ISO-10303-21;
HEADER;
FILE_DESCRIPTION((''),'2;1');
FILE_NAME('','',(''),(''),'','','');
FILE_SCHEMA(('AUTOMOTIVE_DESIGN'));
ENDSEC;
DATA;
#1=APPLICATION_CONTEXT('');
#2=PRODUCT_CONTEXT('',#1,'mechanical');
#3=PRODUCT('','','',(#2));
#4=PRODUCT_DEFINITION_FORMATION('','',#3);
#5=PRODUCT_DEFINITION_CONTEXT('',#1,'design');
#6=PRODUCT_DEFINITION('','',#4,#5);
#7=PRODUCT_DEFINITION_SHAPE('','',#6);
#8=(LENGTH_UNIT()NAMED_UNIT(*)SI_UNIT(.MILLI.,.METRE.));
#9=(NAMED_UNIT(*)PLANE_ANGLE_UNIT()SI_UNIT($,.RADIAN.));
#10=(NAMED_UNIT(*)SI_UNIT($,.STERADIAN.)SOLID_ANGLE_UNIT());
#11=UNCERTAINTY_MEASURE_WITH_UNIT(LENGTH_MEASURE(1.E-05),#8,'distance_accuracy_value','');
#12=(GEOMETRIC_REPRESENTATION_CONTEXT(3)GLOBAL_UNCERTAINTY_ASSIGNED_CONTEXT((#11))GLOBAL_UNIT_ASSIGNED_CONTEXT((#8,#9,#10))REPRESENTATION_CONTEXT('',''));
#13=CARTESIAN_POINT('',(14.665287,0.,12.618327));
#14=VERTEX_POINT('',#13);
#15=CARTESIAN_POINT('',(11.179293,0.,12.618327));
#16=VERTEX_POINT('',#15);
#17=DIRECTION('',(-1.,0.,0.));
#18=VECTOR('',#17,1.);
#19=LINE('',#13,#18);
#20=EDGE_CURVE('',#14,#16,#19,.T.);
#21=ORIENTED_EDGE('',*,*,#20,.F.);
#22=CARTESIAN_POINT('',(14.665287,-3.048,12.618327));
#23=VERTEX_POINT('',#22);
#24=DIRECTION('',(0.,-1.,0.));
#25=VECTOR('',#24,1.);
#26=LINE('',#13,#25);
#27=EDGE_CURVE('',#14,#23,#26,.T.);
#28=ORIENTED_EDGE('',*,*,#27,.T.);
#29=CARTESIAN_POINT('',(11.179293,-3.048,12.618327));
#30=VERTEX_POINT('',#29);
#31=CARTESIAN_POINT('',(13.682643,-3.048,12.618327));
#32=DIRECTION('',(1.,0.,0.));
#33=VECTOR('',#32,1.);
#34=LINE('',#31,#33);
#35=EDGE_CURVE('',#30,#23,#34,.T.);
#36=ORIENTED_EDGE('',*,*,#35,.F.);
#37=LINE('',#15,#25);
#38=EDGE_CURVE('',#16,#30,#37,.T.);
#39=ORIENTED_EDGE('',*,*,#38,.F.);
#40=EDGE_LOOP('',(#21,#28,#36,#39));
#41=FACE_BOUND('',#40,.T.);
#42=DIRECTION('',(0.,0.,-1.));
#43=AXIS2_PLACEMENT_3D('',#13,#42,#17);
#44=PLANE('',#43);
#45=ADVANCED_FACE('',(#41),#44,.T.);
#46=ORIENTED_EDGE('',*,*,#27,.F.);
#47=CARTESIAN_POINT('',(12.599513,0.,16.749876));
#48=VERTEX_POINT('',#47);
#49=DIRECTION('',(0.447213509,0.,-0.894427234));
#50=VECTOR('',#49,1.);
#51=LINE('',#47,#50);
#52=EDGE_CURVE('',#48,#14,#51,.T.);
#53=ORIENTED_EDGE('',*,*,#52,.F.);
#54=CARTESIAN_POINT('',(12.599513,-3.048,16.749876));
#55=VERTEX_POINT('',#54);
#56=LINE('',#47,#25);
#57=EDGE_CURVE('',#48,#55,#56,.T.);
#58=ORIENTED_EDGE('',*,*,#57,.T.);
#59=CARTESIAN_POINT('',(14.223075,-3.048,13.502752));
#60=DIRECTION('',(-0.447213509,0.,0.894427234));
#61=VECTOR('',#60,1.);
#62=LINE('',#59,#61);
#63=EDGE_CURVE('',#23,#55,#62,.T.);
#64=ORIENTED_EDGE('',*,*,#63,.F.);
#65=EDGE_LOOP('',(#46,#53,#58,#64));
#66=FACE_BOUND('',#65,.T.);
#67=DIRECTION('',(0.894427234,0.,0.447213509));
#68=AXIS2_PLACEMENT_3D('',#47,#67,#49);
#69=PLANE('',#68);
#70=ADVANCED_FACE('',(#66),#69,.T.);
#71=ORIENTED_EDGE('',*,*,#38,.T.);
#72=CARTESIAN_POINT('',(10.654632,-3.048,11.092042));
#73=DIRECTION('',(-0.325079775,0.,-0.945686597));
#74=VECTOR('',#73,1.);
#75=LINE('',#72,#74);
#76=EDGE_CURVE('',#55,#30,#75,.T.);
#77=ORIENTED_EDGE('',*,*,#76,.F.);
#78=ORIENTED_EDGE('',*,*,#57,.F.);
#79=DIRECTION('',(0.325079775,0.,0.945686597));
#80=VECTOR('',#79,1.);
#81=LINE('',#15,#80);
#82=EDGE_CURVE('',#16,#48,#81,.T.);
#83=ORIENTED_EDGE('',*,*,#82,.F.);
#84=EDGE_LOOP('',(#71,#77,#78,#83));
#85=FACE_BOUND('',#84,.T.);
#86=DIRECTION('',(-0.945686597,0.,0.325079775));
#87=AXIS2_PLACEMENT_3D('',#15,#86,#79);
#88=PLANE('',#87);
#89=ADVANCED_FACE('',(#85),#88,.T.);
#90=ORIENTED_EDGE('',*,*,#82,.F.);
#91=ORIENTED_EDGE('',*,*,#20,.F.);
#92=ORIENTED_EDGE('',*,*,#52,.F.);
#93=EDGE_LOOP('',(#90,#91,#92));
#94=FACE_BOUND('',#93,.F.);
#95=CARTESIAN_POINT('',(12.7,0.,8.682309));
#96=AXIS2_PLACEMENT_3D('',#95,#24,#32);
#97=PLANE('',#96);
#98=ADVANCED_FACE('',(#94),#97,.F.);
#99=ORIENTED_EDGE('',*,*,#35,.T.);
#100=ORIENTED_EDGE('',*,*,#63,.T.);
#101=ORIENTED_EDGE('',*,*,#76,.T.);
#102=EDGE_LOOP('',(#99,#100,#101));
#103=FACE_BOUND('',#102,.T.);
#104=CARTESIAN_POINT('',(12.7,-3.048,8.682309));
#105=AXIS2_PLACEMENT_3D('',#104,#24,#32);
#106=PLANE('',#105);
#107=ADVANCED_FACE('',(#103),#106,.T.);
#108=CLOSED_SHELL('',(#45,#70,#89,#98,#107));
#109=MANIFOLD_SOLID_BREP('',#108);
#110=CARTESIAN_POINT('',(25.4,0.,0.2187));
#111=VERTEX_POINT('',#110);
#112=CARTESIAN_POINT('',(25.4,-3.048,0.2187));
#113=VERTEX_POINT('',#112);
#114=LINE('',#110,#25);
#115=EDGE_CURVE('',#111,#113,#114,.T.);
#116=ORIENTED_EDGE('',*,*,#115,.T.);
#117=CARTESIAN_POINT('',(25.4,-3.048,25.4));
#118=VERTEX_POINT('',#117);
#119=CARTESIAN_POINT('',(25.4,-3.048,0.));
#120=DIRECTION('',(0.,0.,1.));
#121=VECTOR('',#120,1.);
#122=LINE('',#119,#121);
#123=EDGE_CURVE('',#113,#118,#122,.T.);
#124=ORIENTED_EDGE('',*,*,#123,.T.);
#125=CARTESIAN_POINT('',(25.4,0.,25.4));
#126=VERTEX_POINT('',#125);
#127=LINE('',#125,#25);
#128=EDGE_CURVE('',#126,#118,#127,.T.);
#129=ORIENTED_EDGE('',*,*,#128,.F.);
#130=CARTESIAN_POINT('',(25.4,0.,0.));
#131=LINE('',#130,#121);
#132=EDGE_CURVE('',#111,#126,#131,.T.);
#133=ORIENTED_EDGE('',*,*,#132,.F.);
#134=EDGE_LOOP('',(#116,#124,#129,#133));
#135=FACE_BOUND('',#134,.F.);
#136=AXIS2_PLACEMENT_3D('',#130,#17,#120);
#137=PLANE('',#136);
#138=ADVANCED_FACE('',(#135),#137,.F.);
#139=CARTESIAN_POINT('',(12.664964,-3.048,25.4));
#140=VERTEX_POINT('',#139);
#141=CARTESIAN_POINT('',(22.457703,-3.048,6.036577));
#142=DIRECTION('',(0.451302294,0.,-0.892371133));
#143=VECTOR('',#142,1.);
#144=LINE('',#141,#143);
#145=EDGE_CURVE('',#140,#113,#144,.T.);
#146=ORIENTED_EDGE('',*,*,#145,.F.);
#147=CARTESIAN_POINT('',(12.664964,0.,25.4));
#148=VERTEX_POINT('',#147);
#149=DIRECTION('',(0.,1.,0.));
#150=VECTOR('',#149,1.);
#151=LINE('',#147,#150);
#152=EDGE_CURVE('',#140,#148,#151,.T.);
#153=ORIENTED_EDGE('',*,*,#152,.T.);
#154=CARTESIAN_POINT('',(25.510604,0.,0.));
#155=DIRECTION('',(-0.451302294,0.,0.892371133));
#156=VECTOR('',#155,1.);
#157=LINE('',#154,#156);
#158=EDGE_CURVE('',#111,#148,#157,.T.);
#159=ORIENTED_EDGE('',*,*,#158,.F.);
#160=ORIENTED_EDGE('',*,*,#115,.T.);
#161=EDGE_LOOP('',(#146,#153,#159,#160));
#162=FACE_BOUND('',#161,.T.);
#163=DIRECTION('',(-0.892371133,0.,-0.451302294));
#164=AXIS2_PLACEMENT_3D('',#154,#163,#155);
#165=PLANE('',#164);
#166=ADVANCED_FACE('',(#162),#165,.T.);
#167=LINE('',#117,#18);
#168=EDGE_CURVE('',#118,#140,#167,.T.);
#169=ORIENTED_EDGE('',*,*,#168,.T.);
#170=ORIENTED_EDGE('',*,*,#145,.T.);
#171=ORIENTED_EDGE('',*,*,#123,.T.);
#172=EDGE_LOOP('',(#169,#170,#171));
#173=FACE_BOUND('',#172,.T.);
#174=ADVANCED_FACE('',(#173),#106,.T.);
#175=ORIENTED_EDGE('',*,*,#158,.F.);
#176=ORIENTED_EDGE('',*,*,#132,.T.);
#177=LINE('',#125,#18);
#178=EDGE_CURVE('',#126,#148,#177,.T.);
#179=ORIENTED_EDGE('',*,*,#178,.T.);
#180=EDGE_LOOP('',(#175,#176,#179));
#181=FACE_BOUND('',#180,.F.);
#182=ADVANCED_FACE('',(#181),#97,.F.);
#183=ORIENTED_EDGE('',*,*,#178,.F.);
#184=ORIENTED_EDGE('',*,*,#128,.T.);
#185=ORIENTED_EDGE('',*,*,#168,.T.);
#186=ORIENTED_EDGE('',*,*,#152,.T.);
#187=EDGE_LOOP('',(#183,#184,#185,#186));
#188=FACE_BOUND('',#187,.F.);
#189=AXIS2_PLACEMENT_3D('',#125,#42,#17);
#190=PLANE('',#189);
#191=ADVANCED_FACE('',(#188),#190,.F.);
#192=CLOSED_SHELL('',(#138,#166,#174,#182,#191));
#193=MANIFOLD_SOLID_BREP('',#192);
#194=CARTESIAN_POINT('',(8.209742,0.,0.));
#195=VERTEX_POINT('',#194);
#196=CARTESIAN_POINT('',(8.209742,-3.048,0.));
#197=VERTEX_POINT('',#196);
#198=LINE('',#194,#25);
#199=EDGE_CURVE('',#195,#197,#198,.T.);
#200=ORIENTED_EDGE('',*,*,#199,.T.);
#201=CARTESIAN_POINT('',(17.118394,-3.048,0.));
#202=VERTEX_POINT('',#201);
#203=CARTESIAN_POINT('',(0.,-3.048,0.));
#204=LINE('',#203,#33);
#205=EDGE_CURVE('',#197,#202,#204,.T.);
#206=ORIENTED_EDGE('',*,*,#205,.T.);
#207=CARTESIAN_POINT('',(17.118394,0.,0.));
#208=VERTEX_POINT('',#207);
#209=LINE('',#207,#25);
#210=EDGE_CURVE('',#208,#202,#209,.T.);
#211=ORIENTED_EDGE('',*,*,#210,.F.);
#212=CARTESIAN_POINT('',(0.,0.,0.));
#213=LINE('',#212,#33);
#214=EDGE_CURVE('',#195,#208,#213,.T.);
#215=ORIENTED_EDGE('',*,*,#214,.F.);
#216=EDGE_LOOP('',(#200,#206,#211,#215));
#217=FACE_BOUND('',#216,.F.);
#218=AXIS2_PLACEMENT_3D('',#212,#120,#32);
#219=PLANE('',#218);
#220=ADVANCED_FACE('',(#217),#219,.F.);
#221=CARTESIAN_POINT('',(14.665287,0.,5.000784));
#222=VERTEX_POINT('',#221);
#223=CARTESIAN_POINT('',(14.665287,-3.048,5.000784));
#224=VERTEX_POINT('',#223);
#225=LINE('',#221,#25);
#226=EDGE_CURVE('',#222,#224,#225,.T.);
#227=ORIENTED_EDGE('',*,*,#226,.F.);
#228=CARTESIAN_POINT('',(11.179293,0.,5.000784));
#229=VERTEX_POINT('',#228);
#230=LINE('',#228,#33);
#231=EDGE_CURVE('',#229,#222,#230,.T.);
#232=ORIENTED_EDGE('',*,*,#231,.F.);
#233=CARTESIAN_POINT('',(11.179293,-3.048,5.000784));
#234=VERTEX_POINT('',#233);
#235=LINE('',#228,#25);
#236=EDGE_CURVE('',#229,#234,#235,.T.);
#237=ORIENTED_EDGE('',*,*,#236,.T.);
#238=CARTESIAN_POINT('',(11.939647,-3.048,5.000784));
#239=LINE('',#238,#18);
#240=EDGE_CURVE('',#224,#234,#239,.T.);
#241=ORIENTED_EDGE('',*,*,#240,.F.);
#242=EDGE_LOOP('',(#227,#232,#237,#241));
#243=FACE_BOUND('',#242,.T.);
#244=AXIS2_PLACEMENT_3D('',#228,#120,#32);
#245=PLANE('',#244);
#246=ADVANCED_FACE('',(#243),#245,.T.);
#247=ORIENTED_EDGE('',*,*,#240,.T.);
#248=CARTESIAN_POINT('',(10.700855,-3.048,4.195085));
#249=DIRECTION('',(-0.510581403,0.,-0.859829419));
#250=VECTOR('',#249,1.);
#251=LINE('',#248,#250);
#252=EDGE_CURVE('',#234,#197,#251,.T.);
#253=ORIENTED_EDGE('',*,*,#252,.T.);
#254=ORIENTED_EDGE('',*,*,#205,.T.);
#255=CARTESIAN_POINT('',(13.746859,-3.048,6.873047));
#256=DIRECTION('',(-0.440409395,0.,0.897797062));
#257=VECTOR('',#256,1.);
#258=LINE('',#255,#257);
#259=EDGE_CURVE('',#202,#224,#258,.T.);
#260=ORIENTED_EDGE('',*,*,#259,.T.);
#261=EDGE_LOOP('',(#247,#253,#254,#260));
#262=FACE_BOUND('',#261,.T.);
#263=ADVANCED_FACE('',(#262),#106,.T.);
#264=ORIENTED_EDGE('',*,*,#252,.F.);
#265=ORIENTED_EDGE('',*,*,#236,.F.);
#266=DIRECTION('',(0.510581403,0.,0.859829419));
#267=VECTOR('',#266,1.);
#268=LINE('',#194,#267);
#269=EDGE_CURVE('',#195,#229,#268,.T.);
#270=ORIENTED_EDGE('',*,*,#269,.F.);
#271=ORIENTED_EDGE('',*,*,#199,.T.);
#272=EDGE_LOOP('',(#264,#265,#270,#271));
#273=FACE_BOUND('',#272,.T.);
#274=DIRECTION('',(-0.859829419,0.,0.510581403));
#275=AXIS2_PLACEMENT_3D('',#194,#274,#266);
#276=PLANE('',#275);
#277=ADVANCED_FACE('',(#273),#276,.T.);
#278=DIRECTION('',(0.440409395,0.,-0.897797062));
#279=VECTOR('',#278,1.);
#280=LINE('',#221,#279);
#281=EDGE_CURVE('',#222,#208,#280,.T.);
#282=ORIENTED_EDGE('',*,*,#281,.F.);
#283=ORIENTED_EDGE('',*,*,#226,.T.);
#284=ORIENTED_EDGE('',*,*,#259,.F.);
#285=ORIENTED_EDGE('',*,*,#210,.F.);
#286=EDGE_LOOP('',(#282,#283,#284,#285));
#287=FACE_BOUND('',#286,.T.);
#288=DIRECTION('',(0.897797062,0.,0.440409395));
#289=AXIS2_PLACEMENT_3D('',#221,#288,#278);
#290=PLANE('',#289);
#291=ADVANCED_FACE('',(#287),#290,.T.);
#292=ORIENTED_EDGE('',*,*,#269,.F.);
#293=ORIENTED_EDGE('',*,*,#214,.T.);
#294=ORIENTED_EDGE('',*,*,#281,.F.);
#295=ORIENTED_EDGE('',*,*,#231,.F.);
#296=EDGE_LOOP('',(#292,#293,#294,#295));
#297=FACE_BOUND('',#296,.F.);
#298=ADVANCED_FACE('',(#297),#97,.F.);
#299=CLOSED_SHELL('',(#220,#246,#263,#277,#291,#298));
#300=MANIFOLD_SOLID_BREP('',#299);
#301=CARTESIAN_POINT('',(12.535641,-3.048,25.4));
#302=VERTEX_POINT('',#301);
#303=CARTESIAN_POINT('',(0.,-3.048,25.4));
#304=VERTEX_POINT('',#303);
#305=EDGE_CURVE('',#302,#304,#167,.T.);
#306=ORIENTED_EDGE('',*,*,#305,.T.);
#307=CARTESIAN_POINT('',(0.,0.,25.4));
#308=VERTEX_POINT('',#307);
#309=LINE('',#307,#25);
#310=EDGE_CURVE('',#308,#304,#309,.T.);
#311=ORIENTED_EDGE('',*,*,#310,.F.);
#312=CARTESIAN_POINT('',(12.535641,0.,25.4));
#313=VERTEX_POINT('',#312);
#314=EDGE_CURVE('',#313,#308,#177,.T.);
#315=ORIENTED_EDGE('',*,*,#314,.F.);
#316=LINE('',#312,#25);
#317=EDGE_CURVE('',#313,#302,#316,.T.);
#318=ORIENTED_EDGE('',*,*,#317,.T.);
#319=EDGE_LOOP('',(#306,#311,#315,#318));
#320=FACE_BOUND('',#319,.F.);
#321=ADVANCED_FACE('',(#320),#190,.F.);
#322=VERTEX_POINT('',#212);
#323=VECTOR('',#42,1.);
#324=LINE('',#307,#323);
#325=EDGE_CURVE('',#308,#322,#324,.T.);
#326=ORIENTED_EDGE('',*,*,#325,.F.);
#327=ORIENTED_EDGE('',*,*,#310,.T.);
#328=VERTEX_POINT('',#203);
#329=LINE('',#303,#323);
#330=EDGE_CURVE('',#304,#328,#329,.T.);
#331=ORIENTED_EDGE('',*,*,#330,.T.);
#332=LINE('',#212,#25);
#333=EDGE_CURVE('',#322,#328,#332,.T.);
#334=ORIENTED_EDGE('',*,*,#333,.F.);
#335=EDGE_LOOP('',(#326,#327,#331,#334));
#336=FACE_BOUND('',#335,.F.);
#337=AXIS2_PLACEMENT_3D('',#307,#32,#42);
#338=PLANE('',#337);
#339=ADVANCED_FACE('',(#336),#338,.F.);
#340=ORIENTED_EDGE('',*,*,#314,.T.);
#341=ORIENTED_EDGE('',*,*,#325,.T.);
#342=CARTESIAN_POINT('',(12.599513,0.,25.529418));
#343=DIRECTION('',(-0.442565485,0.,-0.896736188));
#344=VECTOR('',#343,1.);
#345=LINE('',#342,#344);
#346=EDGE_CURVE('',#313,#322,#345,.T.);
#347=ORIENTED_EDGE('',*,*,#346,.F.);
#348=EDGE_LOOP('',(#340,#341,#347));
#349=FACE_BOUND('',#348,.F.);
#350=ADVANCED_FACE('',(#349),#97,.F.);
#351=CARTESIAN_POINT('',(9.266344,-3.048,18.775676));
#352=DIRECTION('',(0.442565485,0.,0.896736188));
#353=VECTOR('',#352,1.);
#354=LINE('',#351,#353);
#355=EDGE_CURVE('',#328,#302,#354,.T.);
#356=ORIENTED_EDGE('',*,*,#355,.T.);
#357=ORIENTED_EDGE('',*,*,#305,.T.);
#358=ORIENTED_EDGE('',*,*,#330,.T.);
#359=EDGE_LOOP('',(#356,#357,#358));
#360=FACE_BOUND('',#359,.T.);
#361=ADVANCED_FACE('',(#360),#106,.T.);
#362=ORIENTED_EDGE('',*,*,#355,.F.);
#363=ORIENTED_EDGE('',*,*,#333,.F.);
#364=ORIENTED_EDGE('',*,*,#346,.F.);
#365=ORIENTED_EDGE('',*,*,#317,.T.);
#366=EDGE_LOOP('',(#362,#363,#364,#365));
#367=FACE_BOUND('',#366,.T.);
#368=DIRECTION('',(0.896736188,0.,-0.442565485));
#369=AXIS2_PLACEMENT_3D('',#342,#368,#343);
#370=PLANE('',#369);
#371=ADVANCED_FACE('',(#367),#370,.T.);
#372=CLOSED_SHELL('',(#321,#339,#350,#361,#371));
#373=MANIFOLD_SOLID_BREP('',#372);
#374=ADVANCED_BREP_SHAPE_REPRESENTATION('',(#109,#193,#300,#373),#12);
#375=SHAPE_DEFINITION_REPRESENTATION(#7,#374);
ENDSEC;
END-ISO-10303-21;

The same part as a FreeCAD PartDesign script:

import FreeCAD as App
import Part
import Sketcher
Q = App.Units.Quantity

doc = App.newDocument("Part")
body = doc.addObject("PartDesign::Body", "Body")
body.AllowCompound = True

sketch1 = body.newObject("Sketcher::SketchObject", "Sketch")
sketch1.AttachmentSupport = (doc.getObject("XZ_Plane"), [""])
sketch1.MapMode = "FlatFace"
sketch1.addGeometry([
    Part.LineSegment(App.Vector(0, 25, 0), App.Vector(0, 0, 0)),
    Part.LineSegment(App.Vector(0, 0, 0), App.Vector(25, 0, 0)),
    Part.LineSegment(App.Vector(25, 0, 0), App.Vector(25, 25, 0)),
    Part.LineSegment(App.Vector(25, 25, 0), App.Vector(0, 25, 0)),
], False)
sketch1.addConstraint([
    Sketcher.Constraint("Coincident", 0, 2, 1, 1),
    Sketcher.Constraint("Coincident", 1, 2, 2, 1),
    Sketcher.Constraint("Coincident", 2, 2, 3, 1),
    Sketcher.Constraint("Coincident", 3, 2, 0, 1),
    Sketcher.Constraint("Vertical", 0),
    Sketcher.Constraint("Horizontal", 1),
    Sketcher.Constraint("Vertical", 2),
    Sketcher.Constraint("Horizontal", 3),
    Sketcher.Constraint("Coincident", 0, 2, -1, 1),
    Sketcher.Constraint("Equal", 3, 0),
    Sketcher.Constraint("DistanceX", 1, 1, 1, 2, Q("1 in")),
])
pad1 = body.newObject("PartDesign::Pad", "Pad")
pad1.Profile = sketch1
pad1.Length = Q("0.12 in")

sketch2 = body.newObject("Sketcher::SketchObject", "Sketch001")
sketch2.AttachmentSupport = (doc.getObject("XZ_Plane"), [""])
sketch2.MapMode = "FlatFace"
sketch2.addGeometry([
    Part.LineSegment(App.Vector(12.6, 25.5, 0), App.Vector(0, 0, 0)),
    Part.LineSegment(App.Vector(0, 0, 0), App.Vector(8.2, 0, 0)),
    Part.LineSegment(App.Vector(8.2, 0, 0), App.Vector(11.2, 5, 0)),
    Part.LineSegment(App.Vector(11.2, 5, 0), App.Vector(14.7, 5, 0)),
    Part.LineSegment(App.Vector(14.7, 5, 0), App.Vector(17.1, 0, 0)),
    Part.LineSegment(App.Vector(17.1, 0, 0), App.Vector(25.5, 0, 0)),
    Part.LineSegment(App.Vector(25.5, 0, 0), App.Vector(12.6, 25.5, 0)),
    Part.LineSegment(App.Vector(12.6, 16.7, 0), App.Vector(14.7, 12.6, 0)),
    Part.LineSegment(App.Vector(14.7, 12.6, 0), App.Vector(11.2, 12.6, 0)),
    Part.LineSegment(App.Vector(11.2, 12.6, 0), App.Vector(12.6, 16.7, 0)),
], False)
sketch2.addConstraint([
    Sketcher.Constraint("Coincident", 0, 2, 1, 1),
    Sketcher.Constraint("Coincident", 1, 2, 2, 1),
    Sketcher.Constraint("Coincident", 2, 2, 3, 1),
    Sketcher.Constraint("Coincident", 3, 2, 4, 1),
    Sketcher.Constraint("Coincident", 4, 2, 5, 1),
    Sketcher.Constraint("Coincident", 5, 2, 6, 1),
    Sketcher.Constraint("Coincident", 6, 2, 0, 1),
    Sketcher.Constraint("Coincident", 7, 2, 8, 1),
    Sketcher.Constraint("Coincident", 8, 2, 9, 1),
    Sketcher.Constraint("Coincident", 9, 2, 7, 1),
    Sketcher.Constraint("Horizontal", 1),
    Sketcher.Constraint("Horizontal", 3),
    Sketcher.Constraint("Horizontal", 5),
    Sketcher.Constraint("Horizontal", 8),
    Sketcher.Constraint("Coincident", 0, 2, -1, 1),
    Sketcher.Constraint("PointOnObject", 4, 2, -1),
    Sketcher.Constraint("Vertical", 3, 2, 7, 2),
    Sketcher.Constraint("Vertical", 2, 2, 8, 2),
    Sketcher.Constraint("Vertical", 6, 2, 9, 2),
    Sketcher.Constraint("Angle", 4, Q("-63.869995 deg")),
    Sketcher.Constraint("DistanceX", 5, 1, 5, 2, 8.39221),
    Sketcher.Constraint("DistanceX", 2, 2, 4, 2, 5.939101),
    Sketcher.Constraint("Distance", 2, 5.816019),
    Sketcher.Constraint("Distance", 4, 5.570061),
    Sketcher.Constraint("Distance", 6, 28.608521),
    Sketcher.Constraint("Distance", 7, 4.619212),
    Sketcher.Constraint("DistanceX", 1, 1, 1, 2, 8.209742),
    Sketcher.Constraint("DistanceY", -1, 1, 6, 2, 25.529418),
    Sketcher.Constraint("DistanceY", 7, 2, 6, 2, 12.911091),
])
pocket1 = body.newObject("PartDesign::Pocket", "Pocket")
pocket1.Profile = sketch2
pocket1.Length = Q("1 in")
pocket1.Reversed = True

doc.recompute()
